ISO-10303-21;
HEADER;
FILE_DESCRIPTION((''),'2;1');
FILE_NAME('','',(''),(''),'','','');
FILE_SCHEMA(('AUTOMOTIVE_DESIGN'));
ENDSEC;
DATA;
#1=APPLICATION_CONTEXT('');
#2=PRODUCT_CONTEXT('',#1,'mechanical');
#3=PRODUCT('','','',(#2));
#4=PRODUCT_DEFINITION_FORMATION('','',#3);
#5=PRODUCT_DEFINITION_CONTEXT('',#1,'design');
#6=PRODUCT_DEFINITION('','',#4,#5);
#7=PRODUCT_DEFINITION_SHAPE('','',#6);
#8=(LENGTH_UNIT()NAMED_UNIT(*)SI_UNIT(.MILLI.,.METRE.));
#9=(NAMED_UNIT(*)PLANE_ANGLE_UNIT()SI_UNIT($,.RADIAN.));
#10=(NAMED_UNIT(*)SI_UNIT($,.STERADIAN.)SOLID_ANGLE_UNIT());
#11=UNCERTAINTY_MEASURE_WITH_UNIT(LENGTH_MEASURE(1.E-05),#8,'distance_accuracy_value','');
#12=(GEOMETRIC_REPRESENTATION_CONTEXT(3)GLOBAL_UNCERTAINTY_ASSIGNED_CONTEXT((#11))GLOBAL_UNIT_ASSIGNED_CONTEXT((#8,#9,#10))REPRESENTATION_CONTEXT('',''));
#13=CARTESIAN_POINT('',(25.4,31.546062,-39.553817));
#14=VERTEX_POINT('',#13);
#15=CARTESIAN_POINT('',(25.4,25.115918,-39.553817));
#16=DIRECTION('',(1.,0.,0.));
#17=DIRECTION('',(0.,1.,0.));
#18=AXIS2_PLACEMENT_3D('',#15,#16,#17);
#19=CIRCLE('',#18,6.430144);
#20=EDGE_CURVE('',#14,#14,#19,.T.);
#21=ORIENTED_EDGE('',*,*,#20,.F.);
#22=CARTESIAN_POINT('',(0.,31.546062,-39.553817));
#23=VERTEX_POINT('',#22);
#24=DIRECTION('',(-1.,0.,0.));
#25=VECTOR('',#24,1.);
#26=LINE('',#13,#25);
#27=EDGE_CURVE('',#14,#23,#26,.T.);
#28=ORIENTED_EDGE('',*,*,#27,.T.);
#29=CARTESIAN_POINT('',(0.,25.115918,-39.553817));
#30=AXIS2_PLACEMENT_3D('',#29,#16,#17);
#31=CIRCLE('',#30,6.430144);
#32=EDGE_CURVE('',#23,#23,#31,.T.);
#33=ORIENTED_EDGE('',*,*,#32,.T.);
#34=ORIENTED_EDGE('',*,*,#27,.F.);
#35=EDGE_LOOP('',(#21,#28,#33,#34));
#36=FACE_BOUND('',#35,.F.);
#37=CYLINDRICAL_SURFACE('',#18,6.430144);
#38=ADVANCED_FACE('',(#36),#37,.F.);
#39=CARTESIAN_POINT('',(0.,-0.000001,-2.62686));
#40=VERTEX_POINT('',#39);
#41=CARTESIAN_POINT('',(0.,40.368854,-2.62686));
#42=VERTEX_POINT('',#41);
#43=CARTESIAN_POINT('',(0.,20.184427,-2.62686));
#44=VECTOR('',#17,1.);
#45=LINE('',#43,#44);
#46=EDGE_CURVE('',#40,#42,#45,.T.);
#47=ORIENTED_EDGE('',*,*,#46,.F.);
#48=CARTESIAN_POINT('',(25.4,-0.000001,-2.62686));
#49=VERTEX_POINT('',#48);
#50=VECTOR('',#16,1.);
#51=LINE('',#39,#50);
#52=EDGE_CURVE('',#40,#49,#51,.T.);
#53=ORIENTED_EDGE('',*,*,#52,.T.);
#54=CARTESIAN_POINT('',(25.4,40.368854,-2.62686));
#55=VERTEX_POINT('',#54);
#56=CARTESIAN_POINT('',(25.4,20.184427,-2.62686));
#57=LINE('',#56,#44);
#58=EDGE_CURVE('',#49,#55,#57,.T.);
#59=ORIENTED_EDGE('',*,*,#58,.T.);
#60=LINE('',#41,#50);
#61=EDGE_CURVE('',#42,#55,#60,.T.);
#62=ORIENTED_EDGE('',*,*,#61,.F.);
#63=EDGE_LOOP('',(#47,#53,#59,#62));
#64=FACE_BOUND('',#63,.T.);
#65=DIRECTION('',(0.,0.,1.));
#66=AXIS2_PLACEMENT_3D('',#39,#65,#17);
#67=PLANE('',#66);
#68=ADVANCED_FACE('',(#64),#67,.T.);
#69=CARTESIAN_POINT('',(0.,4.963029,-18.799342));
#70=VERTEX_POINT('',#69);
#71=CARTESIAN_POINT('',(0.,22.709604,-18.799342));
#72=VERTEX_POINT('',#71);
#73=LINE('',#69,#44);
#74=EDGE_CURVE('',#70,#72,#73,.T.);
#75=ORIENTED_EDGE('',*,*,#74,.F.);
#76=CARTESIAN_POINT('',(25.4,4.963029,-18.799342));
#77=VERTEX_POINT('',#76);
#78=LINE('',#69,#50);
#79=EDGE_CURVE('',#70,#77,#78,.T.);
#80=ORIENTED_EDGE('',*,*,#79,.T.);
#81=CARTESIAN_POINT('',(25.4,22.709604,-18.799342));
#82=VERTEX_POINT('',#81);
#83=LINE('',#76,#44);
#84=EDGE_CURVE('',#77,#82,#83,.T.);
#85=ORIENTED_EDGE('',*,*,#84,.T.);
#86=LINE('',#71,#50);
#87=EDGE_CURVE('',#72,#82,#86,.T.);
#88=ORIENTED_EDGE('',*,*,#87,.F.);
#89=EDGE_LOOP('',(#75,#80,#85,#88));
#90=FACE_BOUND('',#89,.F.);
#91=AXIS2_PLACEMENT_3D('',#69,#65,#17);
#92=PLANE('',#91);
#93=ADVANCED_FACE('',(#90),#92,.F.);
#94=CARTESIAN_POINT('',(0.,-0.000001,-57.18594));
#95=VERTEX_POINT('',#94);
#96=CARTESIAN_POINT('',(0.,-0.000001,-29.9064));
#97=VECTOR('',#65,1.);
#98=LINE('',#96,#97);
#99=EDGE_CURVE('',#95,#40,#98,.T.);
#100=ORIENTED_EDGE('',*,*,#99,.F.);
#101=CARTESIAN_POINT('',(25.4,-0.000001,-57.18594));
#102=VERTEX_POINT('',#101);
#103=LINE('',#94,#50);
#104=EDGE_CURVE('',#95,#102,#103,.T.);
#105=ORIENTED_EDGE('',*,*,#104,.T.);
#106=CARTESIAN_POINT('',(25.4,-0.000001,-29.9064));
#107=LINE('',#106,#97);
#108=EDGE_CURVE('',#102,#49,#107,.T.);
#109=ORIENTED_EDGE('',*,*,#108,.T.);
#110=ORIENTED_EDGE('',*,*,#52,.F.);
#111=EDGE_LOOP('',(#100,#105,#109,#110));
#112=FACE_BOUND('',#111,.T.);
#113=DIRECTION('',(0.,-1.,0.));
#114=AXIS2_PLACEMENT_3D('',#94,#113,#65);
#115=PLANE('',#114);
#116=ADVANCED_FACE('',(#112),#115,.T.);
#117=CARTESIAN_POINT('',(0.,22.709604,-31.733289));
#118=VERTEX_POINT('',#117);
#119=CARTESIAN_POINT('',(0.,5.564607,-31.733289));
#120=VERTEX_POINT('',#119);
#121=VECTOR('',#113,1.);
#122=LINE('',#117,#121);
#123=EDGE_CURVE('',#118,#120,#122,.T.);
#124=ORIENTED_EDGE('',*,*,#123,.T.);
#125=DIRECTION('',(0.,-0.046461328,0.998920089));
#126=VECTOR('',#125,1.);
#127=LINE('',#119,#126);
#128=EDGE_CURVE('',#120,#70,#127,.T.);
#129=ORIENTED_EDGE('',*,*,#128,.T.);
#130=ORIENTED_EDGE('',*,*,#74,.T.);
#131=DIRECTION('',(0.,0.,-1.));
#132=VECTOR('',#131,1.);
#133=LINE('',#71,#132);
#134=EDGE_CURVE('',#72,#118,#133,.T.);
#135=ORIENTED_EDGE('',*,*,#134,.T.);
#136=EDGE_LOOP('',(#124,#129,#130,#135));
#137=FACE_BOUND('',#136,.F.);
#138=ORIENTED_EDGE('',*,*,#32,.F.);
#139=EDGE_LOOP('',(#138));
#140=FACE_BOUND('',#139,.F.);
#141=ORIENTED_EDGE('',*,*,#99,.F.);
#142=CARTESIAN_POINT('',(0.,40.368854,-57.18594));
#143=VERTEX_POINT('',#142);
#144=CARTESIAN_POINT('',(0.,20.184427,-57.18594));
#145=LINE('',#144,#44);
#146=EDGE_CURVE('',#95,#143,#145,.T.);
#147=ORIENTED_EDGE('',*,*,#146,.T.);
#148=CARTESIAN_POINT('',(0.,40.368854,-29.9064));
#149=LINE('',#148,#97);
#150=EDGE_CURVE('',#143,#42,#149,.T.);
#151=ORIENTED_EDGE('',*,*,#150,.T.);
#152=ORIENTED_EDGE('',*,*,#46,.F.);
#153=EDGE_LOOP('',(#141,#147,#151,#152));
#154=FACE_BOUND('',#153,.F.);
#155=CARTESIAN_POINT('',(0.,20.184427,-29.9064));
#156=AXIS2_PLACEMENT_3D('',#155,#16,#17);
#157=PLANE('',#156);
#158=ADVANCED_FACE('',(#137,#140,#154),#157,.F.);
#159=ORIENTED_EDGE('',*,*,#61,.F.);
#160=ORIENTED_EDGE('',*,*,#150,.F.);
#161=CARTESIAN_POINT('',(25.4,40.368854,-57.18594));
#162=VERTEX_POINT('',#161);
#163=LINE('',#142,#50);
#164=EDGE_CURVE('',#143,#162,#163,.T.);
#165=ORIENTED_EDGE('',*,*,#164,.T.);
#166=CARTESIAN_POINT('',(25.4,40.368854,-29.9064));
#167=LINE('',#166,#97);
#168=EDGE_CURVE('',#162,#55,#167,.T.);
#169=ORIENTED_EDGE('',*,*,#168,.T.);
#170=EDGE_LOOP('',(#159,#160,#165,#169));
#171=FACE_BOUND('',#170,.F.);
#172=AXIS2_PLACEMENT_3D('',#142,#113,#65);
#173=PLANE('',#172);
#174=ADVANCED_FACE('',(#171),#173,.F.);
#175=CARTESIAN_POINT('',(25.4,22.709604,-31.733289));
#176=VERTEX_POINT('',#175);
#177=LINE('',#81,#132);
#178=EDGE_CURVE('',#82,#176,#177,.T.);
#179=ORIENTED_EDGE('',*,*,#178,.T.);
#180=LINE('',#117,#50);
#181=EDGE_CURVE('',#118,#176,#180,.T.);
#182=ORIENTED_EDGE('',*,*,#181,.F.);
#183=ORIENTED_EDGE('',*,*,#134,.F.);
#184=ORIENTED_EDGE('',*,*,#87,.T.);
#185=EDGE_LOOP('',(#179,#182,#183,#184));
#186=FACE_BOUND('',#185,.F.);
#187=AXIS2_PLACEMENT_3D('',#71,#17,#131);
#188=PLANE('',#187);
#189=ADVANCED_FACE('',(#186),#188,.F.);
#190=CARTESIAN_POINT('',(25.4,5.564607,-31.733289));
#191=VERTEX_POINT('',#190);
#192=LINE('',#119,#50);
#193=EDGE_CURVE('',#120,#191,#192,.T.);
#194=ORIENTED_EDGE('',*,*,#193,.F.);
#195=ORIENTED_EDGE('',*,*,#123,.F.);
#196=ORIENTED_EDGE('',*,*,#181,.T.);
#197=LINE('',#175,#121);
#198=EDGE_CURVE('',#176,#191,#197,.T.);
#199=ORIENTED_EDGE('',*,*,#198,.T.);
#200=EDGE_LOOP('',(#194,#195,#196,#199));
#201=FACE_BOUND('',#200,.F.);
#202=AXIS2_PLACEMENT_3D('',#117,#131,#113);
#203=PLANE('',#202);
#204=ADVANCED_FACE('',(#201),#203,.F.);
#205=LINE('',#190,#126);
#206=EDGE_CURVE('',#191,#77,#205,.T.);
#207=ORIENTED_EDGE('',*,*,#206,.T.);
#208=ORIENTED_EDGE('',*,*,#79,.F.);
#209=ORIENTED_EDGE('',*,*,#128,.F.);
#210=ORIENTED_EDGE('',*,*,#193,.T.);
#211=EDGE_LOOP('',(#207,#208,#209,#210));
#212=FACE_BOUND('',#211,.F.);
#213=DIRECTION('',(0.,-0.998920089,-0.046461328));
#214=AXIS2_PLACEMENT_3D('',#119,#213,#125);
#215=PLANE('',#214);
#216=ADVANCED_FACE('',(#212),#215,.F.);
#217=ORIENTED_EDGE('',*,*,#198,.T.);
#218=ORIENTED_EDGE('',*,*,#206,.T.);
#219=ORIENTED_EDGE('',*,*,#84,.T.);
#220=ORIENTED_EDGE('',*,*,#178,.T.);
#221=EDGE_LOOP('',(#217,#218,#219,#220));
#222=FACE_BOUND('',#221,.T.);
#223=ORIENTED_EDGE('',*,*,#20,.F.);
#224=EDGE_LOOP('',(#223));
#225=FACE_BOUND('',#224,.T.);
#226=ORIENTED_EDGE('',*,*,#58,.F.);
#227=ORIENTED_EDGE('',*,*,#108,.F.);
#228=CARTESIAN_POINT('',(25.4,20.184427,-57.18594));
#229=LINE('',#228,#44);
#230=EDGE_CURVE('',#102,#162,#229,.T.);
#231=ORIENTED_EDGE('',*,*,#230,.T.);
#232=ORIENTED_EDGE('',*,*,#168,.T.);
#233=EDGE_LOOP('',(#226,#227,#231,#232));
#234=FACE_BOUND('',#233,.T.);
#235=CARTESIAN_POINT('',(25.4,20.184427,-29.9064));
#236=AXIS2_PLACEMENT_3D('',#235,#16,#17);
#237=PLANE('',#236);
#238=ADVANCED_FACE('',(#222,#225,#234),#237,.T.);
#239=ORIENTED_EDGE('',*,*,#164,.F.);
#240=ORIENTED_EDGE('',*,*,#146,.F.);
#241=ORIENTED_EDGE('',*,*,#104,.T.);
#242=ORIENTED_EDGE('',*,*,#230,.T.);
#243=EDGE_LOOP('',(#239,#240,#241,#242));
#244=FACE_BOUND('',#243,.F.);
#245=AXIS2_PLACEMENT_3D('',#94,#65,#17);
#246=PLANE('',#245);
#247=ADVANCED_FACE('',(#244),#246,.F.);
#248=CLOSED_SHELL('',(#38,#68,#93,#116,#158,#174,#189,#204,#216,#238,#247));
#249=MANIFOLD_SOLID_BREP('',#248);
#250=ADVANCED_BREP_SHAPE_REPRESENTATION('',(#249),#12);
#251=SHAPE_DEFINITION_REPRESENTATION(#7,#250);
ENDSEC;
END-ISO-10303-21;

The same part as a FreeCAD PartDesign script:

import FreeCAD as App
import Part
import Sketcher
Q = App.Units.Quantity

doc = App.newDocument("Part")
params = doc.addObject("Spreadsheet::Sheet", "Params")
for row, (alias, value) in enumerate([
    ("sketch1_width", "0.6749999 in"),
    ("pad1_length", "1 in"),
], start=1):
    params.set(f"A{row}", alias)
    params.set(f"B{row}", "=" + value)
    params.setAlias(f"B{row}", alias)

body = doc.addObject("PartDesign::Body", "Body")

# Sketch on YZ plane
sketch1 = body.newObject("Sketcher::SketchObject", "Sketch")
sketch1.AttachmentSupport = (doc.getObject("YZ_Plane"), [""])
sketch1.MapMode = "FlatFace"
sketch1.addGeometry([
    Part.LineSegment(App.Vector(0, -2.62686, 0), App.Vector(0, -57.18594, 0)),  # 0
    Part.LineSegment(App.Vector(0, -57.18594, 0), App.Vector(40.368854, -57.18594, 0)),  # 1
    Part.LineSegment(App.Vector(40.368854, -57.18594, 0), App.Vector(40.368854, -2.62686, 0)),  # 2
    Part.LineSegment(App.Vector(40.368854, -2.62686, 0), App.Vector(0, -2.62686, 0)),  # 3
    Part.LineSegment(App.Vector(22.709604, -18.799342, 0), App.Vector(22.709604, -31.733289, 0)),  # 4
    Part.LineSegment(App.Vector(22.709604, -31.733289, 0), App.Vector(5.564607, -31.733289, 0)),  # 5
    Part.LineSegment(App.Vector(5.564607, -31.733289, 0), App.Vector(4.963029, -18.799342, 0)),  # 6
    Part.LineSegment(App.Vector(4.963029, -18.799342, 0), App.Vector(22.709604, -18.799342, 0)),  # 7
], False)
sketch1.addConstraint([
    Sketcher.Constraint("Coincident", 0, 2, 1, 1),
    Sketcher.Constraint("Coincident", 1, 2, 2, 1),
    Sketcher.Constraint("Coincident", 2, 2, 3, 1),
    Sketcher.Constraint("Coincident", 3, 2, 0, 1),
    Sketcher.Constraint("Coincident", 4, 2, 5, 1),
    Sketcher.Constraint("Coincident", 5, 2, 6, 1),
    Sketcher.Constraint("Coincident", 6, 2, 7, 1),
    Sketcher.Constraint("Coincident", 7, 2, 4, 1),
    Sketcher.Constraint("Vertical", 0),
    Sketcher.Constraint("Horizontal", 1),
    Sketcher.Constraint("Vertical", 2),
    Sketcher.Constraint("Horizontal", 3),
    Sketcher.Constraint("Vertical", 4),
    Sketcher.Constraint("Horizontal", 5),
    Sketcher.Constraint("Horizontal", 7),
    Sketcher.Constraint("PointOnObject", 0, 2, -2),
    Sketcher.Constraint("DistanceX", 5, 2, 5, 1, Q("0.6749999 in")),
    Sketcher.Constraint("DistanceY", 0, 2, 0, 1, Q("54.55908 mm")),
    Sketcher.Constraint("DistanceY", 0, 2, 6, 2, Q("38.386598 mm")),
    Sketcher.Constraint("Distance", 6, Q("12.94793 mm")),
    Sketcher.Constraint("DistanceX", 1, 1, 1, 2, Q("40.368855 mm")),
    Sketcher.Constraint("DistanceX", 7, 1, 7, 2, Q("17.746575 mm")),
    Sketcher.Constraint("DistanceY", 0, 2, -1, 1, Q("57.18594 mm")),
    Sketcher.Constraint("DistanceX", -1, 1, 6, 2, Q("4.963029 mm")),
])
sketch1.setExpression("Constraints[16]", "Params.sketch1_width")
pad1 = body.newObject("PartDesign::Pad", "Pad")
pad1.Profile = sketch1
pad1.setExpression("Length", "Params.pad1_length")

# Sketch on YZ plane
sketch2 = body.newObject("Sketcher::SketchObject", "Sketch001")
sketch2.AttachmentSupport = (doc.getObject("YZ_Plane"), [""])
sketch2.MapMode = "FlatFace"
sketch2.AttachmentOffset = App.Placement(App.Vector(0, 0, 1 * 25.4), App.Rotation())
sketch2.addGeometry(Part.Circle(App.Vector(25.115918, -39.553817, 0), App.Vector(0, 0, 1), 6.430144), False)
sketch2.addConstraint([
    Sketcher.Constraint("Diameter", 0, Q("12.860288 mm")),
    Sketcher.Constraint("DistanceX", -1, 1, 0, 3, Q("25.115918 mm")),
    Sketcher.Constraint("DistanceY", 0, 3, -1, 1, Q("39.553817 mm")),
])
pocket1 = body.newObject("PartDesign::Pocket", "Pocket")
pocket1.Profile = sketch2
pocket1.Type = "ThroughAll"

doc.recompute()
